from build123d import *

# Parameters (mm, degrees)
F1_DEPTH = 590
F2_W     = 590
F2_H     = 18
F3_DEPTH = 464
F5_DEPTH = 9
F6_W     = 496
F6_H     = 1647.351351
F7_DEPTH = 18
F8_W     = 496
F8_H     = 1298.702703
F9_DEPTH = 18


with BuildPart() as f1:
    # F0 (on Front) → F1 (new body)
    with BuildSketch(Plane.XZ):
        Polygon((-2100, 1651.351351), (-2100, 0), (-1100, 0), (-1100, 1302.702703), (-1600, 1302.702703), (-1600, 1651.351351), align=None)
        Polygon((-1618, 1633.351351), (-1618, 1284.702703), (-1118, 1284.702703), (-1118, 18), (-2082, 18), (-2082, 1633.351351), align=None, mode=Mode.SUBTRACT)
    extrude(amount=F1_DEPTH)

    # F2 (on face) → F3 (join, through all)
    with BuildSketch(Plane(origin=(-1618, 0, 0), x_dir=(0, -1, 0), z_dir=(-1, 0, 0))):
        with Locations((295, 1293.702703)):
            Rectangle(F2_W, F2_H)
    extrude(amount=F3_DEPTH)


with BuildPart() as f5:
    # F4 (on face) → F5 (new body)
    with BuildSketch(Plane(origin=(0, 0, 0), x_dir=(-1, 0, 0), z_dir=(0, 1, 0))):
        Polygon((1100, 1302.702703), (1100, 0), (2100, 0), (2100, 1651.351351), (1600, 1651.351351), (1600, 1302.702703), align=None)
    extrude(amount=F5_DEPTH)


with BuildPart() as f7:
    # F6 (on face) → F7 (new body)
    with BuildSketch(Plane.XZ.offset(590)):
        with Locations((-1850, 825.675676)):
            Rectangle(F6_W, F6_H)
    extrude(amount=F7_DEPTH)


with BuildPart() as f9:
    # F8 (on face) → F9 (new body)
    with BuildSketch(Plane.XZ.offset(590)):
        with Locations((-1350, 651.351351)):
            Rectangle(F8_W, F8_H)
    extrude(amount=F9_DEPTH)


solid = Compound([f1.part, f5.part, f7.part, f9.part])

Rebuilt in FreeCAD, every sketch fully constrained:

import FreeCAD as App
import Part
import Sketcher

V = App.Vector

doc = App.newDocument("Part")
params = doc.addObject("Spreadsheet::Sheet", "Params")
for row, (alias, value) in enumerate([
    ("sketch1_width", "1000 mm"),
    ("sketch1_width2", "464 mm"),
    ("pad1_length", "590 mm"),
    ("sketch2_width", "590 mm"),
    ("sketch2_height", "18 mm"),
    ("sketch3_width", "1000 mm"),
    ("pad3_length", "9 mm"),
    ("sketch4_width", "496 mm"),
    ("pad4_length", "18 mm"),
    ("sketch5_width", "496 mm"),
    ("pad5_length", "18 mm"),
], start=1):
    params.set(f"A{row}", alias)
    params.set(f"B{row}", "=" + value)
    params.setAlias(f"B{row}", alias)

body = doc.addObject("PartDesign::Body", "Body")

# Sketch on XZ plane
sketch1 = doc.addObject("Sketcher::SketchObject", "Sketch")
body.addObject(sketch1)
sketch1.AttachmentSupport = (doc.XZ_Plane, [""])
sketch1.MapMode = "FlatFace"
sketch1.addGeometry(Part.LineSegment(V(-2100, 1651, 0), V(-2100, 0, 0)), False)
sketch1.addGeometry(Part.LineSegment(V(-2100, 0, 0), V(-1100, 0, 0)), False)
sketch1.addGeometry(Part.LineSegment(V(-1100, 0, 0), V(-1100, 1303, 0)), False)
sketch1.addGeometry(Part.LineSegment(V(-1100, 1303, 0), V(-1600, 1303, 0)), False)
sketch1.addGeometry(Part.LineSegment(V(-1600, 1303, 0), V(-1600, 1651, 0)), False)
sketch1.addGeometry(Part.LineSegment(V(-1600, 1651, 0), V(-2100, 1651, 0)), False)
sketch1.addGeometry(Part.LineSegment(V(-2082, 1633, 0), V(-1618, 1633, 0)), False)
sketch1.addGeometry(Part.LineSegment(V(-1618, 1633, 0), V(-1618, 1285, 0)), False)
sketch1.addGeometry(Part.LineSegment(V(-1618, 1285, 0), V(-1118, 1285, 0)), False)
sketch1.addGeometry(Part.LineSegment(V(-1118, 1285, 0), V(-1118, 18, 0)), False)
sketch1.addGeometry(Part.LineSegment(V(-1118, 18, 0), V(-2082, 18, 0)), False)
sketch1.addGeometry(Part.LineSegment(V(-2082, 18, 0), V(-2082, 1633, 0)), False)
sketch1.addConstraint(Sketcher.Constraint("Coincident", 0, 2, 1, 1))
sketch1.addConstraint(Sketcher.Constraint("Coincident", 1, 2, 2, 1))
sketch1.addConstraint(Sketcher.Constraint("Coincident", 2, 2, 3, 1))
sketch1.addConstraint(Sketcher.Constraint("Coincident", 3, 2, 4, 1))
sketch1.addConstraint(Sketcher.Constraint("Coincident", 4, 2, 5, 1))
sketch1.addConstraint(Sketcher.Constraint("Coincident", 5, 2, 0, 1))
sketch1.addConstraint(Sketcher.Constraint("Coincident", 6, 2, 7, 1))
sketch1.addConstraint(Sketcher.Constraint("Coincident", 7, 2, 8, 1))
sketch1.addConstraint(Sketcher.Constraint("Coincident", 8, 2, 9, 1))
sketch1.addConstraint(Sketcher.Constraint("Coincident", 9, 2, 10, 1))
sketch1.addConstraint(Sketcher.Constraint("Coincident", 10, 2, 11, 1))
sketch1.addConstraint(Sketcher.Constraint("Coincident", 11, 2, 6, 1))
sketch1.addConstraint(Sketcher.Constraint("Vertical", 0))
sketch1.addConstraint(Sketcher.Constraint("Horizontal", 1))
sketch1.addConstraint(Sketcher.Constraint("Vertical", 2))
sketch1.addConstraint(Sketcher.Constraint("Horizontal", 3))
sketch1.addConstraint(Sketcher.Constraint("Vertical", 4))
sketch1.addConstraint(Sketcher.Constraint("Horizontal", 5))
sketch1.addConstraint(Sketcher.Constraint("Horizontal", 6))
sketch1.addConstraint(Sketcher.Constraint("Vertical", 7))
sketch1.addConstraint(Sketcher.Constraint("Horizontal", 8))
sketch1.addConstraint(Sketcher.Constraint("Vertical", 9))
sketch1.addConstraint(Sketcher.Constraint("Horizontal", 10))
sketch1.addConstraint(Sketcher.Constraint("Vertical", 11))
sketch1.addConstraint(Sketcher.Constraint("PointOnObject", 0, 2, -1))
sketch1.addConstraint(Sketcher.Constraint("Equal", 3, 5))
sketch1.addConstraint(Sketcher.Constraint("Equal", 5, 8))
sketch1.addConstraint(Sketcher.Constraint("Equal", 4, 7))
sketch1.addConstraint(Sketcher.Constraint("DistanceX", 1, 1, 1, 2, 1000.0))
sketch1.addConstraint(Sketcher.Constraint("DistanceX", 6, 1, 6, 2, 464.0))
sketch1.addConstraint(Sketcher.Constraint("DistanceX", 0, 2, -1, 1, 2100.0))
sketch1.addConstraint(Sketcher.Constraint("DistanceX", 6, 2, -1, 1, 1618.0))
sketch1.addConstraint(Sketcher.Constraint("DistanceY", -1, 1, 9, 2, 18.0))
sketch1.addConstraint(Sketcher.Constraint("DistanceY", 6, 2, 4, 2, 18.0))
sketch1.addConstraint(Sketcher.Constraint("DistanceY", 0, 2, 0, 1, 1651.351351))
sketch1.addConstraint(Sketcher.Constraint("DistanceY", 4, 1, 4, 2, 348.648648))
sketch1.setExpression("Constraints[28]", "Params.sketch1_width")
sketch1.setExpression("Constraints[29]", "Params.sketch1_width2")
pad1 = doc.addObject("PartDesign::Pad", "Pad")
body.addObject(pad1)
pad1.Profile = sketch1
pad1.setExpression("Length", "Params.pad1_length")

# Sketch on YZ plane
sketch2 = doc.addObject("Sketcher::SketchObject", "Sketch001")
body.addObject(sketch2)
sketch2.AttachmentSupport = (doc.YZ_Plane, [""])
sketch2.MapMode = "FlatFace"
sketch2.AttachmentOffset = App.Placement(V(0, 0, -1618), App.Rotation())
sketch2.addGeometry(Part.LineSegment(V(0, 1303, 0), V(0, 1285, 0)), False)
sketch2.addGeometry(Part.LineSegment(V(0, 1285, 0), V(-590, 1285, 0)), False)
sketch2.addGeometry(Part.LineSegment(V(-590, 1285, 0), V(-590, 1303, 0)), False)
sketch2.addGeometry(Part.LineSegment(V(-590, 1303, 0), V(0, 1303, 0)), False)
sketch2.addConstraint(Sketcher.Constraint("Coincident", 0, 2, 1, 1))
sketch2.addConstraint(Sketcher.Constraint("Coincident", 1, 2, 2, 1))
sketch2.addConstraint(Sketcher.Constraint("Coincident", 2, 2, 3, 1))
sketch2.addConstraint(Sketcher.Constraint("Coincident", 3, 2, 0, 1))
sketch2.addConstraint(Sketcher.Constraint("Vertical", 0))
sketch2.addConstraint(Sketcher.Constraint("Horizontal", 1))
sketch2.addConstraint(Sketcher.Constraint("Vertical", 2))
sketch2.addConstraint(Sketcher.Constraint("Horizontal", 3))
sketch2.addConstraint(Sketcher.Constraint("PointOnObject", 0, 2, -2))
sketch2.addConstraint(Sketcher.Constraint("DistanceX", 1, 2, 1, 1, 590.0))
sketch2.addConstraint(Sketcher.Constraint("DistanceY", 0, 2, 0, 1, 18.0))
sketch2.addConstraint(Sketcher.Constraint("DistanceY", -1, 1, 0, 2, 1284.702703))
sketch2.setExpression("Constraints[9]", "Params.sketch2_width")
sketch2.setExpression("Constraints[10]", "Params.sketch2_height")
pad2 = doc.addObject("PartDesign::Pad", "Pad001")
body.addObject(pad2)
pad2.Profile = sketch2
pad2.Type = "UpToLast"
pad2.Reversed = True
body2 = doc.addObject("PartDesign::Body", "Body001")

# Sketch on XZ plane
sketch3 = doc.addObject("Sketcher::SketchObject", "Sketch002")
body2.addObject(sketch3)
sketch3.AttachmentSupport = (doc.getObject("XZ_Plane001"), [""])
sketch3.MapMode = "FlatFace"
sketch3.addGeometry(Part.LineSegment(V(-1100, 1303, 0), V(-1100, 0, 0)), False)
sketch3.addGeometry(Part.LineSegment(V(-1100, 0, 0), V(-2100, 0, 0)), False)
sketch3.addGeometry(Part.LineSegment(V(-2100, 0, 0), V(-2100, 1651, 0)), False)
sketch3.addGeometry(Part.LineSegment(V(-2100, 1651, 0), V(-1600, 1651, 0)), False)
sketch3.addGeometry(Part.LineSegment(V(-1600, 1651, 0), V(-1600, 1303, 0)), False)
sketch3.addGeometry(Part.LineSegment(V(-1600, 1303, 0), V(-1100, 1303, 0)), False)
sketch3.addConstraint(Sketcher.Constraint("Coincident", 0, 2, 1, 1))
sketch3.addConstraint(Sketcher.Constraint("Coincident", 1, 2, 2, 1))
sketch3.addConstraint(Sketcher.Constraint("Coincident", 2, 2, 3, 1))
sketch3.addConstraint(Sketcher.Constraint("Coincident", 3, 2, 4, 1))
sketch3.addConstraint(Sketcher.Constraint("Coincident", 4, 2, 5, 1))
sketch3.addConstraint(Sketcher.Constraint("Coincident", 5, 2, 0, 1))
sketch3.addConstraint(Sketcher.Constraint("Vertical", 0))
sketch3.addConstraint(Sketcher.Constraint("Horizontal", 1))
sketch3.addConstraint(Sketcher.Constraint("Vertical", 2))
sketch3.addConstraint(Sketcher.Constraint("Horizontal", 3))
sketch3.addConstraint(Sketcher.Constraint("Vertical", 4))
sketch3.addConstraint(Sketcher.Constraint("Horizontal", 5))
sketch3.addConstraint(Sketcher.Constraint("PointOnObject", 0, 2, -1))
sketch3.addConstraint(Sketcher.Constraint("Equal", 3, 5))
sketch3.addConstraint(Sketcher.Constraint("DistanceX", 1, 2, 1, 1, 1000.0))
sketch3.addConstraint(Sketcher.Constraint("DistanceX", 0, 2, -1, 1, 1100.0))
sketch3.addConstraint(Sketcher.Constraint("DistanceY", 2, 1, 2, 2, 1651.351351))
sketch3.addConstraint(Sketcher.Constraint("DistanceY", 4, 2, 4, 1, 348.648648))
sketch3.setExpression("Constraints[14]", "Params.sketch3_width")
pad3 = doc.addObject("PartDesign::Pad", "Pad002")
body2.addObject(pad3)
pad3.Profile = sketch3
pad3.setExpression("Length", "Params.pad3_length")
pad3.Reversed = True
body3 = doc.addObject("PartDesign::Body", "Body002")

# Sketch on XZ plane
sketch4 = doc.addObject("Sketcher::SketchObject", "Sketch003")
body3.addObject(sketch4)
sketch4.AttachmentSupport = (doc.getObject("XZ_Plane002"), [""])
sketch4.MapMode = "FlatFace"
sketch4.AttachmentOffset = App.Placement(V(0, 0, 590), App.Rotation())
sketch4.addGeometry(Part.LineSegment(V(-2098, 1649, 0), V(-2098, 2, 0)), False)
sketch4.addGeometry(Part.LineSegment(V(-2098, 2, 0), V(-1602, 2, 0)), False)
sketch4.addGeometry(Part.LineSegment(V(-1602, 2, 0), V(-1602, 1649, 0)), False)
sketch4.addGeometry(Part.LineSegment(V(-1602, 1649, 0), V(-2098, 1649, 0)), False)
sketch4.addConstraint(Sketcher.Constraint("Coincident", 0, 2, 1, 1))
sketch4.addConstraint(Sketcher.Constraint("Coincident", 1, 2, 2, 1))
sketch4.addConstraint(Sketcher.Constraint("Coincident", 2, 2, 3, 1))
sketch4.addConstraint(Sketcher.Constraint("Coincident", 3, 2, 0, 1))
sketch4.addConstraint(Sketcher.Constraint("Vertical", 0))
sketch4.addConstraint(Sketcher.Constraint("Horizontal", 1))
sketch4.addConstraint(Sketcher.Constraint("Vertical", 2))
sketch4.addConstraint(Sketcher.Constraint("Horizontal", 3))
sketch4.addConstraint(Sketcher.Constraint("DistanceX", 1, 1, 1, 2, 496.0))
sketch4.addConstraint(Sketcher.Constraint("DistanceX", 0, 2, -1, 1, 2098.0))
sketch4.addConstraint(Sketcher.Constraint("DistanceY", -1, 1, 0, 2, 2.000001))
sketch4.addConstraint(Sketcher.Constraint("DistanceY", 0, 2, 0, 1, 1647.351351))
sketch4.setExpression("Constraints[8]", "Params.sketch4_width")
pad4 = doc.addObject("PartDesign::Pad", "Pad003")
body3.addObject(pad4)
pad4.Profile = sketch4
pad4.setExpression("Length", "Params.pad4_length")
body4 = doc.addObject("PartDesign::Body", "Body003")

# Sketch on XZ plane
sketch5 = doc.addObject("Sketcher::SketchObject", "Sketch004")
body4.addObject(sketch5)
sketch5.AttachmentSupport = (doc.getObject("XZ_Plane003"), [""])
sketch5.MapMode = "FlatFace"
sketch5.AttachmentOffset = App.Placement(V(0, 0, 590), App.Rotation())
sketch5.addGeometry(Part.LineSegment(V(-1598, 1301, 0), V(-1598, 2, 0)), False)
sketch5.addGeometry(Part.LineSegment(V(-1598, 2, 0), V(-1102, 2, 0)), False)
sketch5.addGeometry(Part.LineSegment(V(-1102, 2, 0), V(-1102, 1301, 0)), False)
sketch5.addGeometry(Part.LineSegment(V(-1102, 1301, 0), V(-1598, 1301, 0)), False)
sketch5.addConstraint(Sketcher.Constraint("Coincident", 0, 2, 1, 1))
sketch5.addConstraint(Sketcher.Constraint("Coincident", 1, 2, 2, 1))
sketch5.addConstraint(Sketcher.Constraint("Coincident", 2, 2, 3, 1))
sketch5.addConstraint(Sketcher.Constraint("Coincident", 3, 2, 0, 1))
sketch5.addConstraint(Sketcher.Constraint("Vertical", 0))
sketch5.addConstraint(Sketcher.Constraint("Horizontal", 1))
sketch5.addConstraint(Sketcher.Constraint("Vertical", 2))
sketch5.addConstraint(Sketcher.Constraint("Horizontal", 3))
sketch5.addConstraint(Sketcher.Constraint("DistanceX", 1, 1, 1, 2, 496.0))
sketch5.addConstraint(Sketcher.Constraint("DistanceX", 0, 2, -1, 1, 1598.0))
sketch5.addConstraint(Sketcher.Constraint("DistanceY", -1, 1, 0, 2, 1.999999))
sketch5.addConstraint(Sketcher.Constraint("DistanceY", 0, 2, 0, 1, 1298.702703))
sketch5.setExpression("Constraints[8]", "Params.sketch5_width")
pad5 = doc.addObject("PartDesign::Pad", "Pad004")
body4.addObject(pad5)
pad5.Profile = sketch5
pad5.setExpression("Length", "Params.pad5_length")

doc.recompute()
